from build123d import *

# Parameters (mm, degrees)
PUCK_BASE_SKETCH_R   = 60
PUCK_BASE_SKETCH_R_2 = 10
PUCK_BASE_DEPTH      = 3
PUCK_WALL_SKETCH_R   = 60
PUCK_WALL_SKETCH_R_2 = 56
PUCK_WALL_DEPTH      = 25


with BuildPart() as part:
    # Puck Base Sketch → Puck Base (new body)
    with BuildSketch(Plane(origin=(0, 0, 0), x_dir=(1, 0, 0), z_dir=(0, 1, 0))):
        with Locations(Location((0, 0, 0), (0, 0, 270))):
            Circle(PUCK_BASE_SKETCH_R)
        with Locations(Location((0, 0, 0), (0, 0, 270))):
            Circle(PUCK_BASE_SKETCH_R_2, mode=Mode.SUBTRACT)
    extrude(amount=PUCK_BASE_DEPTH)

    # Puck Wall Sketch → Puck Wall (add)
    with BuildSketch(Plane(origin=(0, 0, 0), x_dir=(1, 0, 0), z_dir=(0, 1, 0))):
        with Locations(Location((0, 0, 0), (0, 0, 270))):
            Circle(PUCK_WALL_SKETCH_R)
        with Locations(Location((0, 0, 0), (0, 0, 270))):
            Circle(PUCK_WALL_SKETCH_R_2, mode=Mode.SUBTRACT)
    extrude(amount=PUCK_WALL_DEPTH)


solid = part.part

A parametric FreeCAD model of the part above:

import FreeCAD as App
import Part
import Sketcher
Q = App.Units.Quantity

doc = App.newDocument("Part")
body = doc.addObject("PartDesign::Body", "Body")

# Sketch on XZ plane
sketch1 = doc.addObject("Sketcher::SketchObject", "Sketch")
body.addObject(sketch1)
sketch1.AttachmentSupport = (doc.XZ_Plane, [""])
sketch1.MapMode = "FlatFace"
sketch1.addGeometry(Part.Circle(App.Vector(0, 0, 0), App.Vector(0, 0, 1), 60), False)
sketch1.addGeometry(Part.Circle(App.Vector(0, 0, 0), App.Vector(0, 0, 1), 10), False)
sketch1.addConstraint(Sketcher.Constraint("Coincident", 0, 3, -1, 1))
sketch1.addConstraint(Sketcher.Constraint("Coincident", 1, 3, -1, 1))
sketch1.addConstraint(Sketcher.Constraint("Diameter", 0, Q("120 mm")))
sketch1.addConstraint(Sketcher.Constraint("Diameter", 1, Q("20 mm")))
pad1 = doc.addObject("PartDesign::Pad", "Pad")
body.addObject(pad1)
pad1.Profile = sketch1
pad1.Length = 3
pad1.Reversed = True

# Sketch on XZ plane
sketch2 = doc.addObject("Sketcher::SketchObject", "Sketch001")
body.addObject(sketch2)
sketch2.AttachmentSupport = (doc.XZ_Plane, [""])
sketch2.MapMode = "FlatFace"
sketch2.addGeometry(Part.Circle(App.Vector(0, 0, 0), App.Vector(0, 0, 1), 60), False)
sketch2.addGeometry(Part.Circle(App.Vector(0, 0, 0), App.Vector(0, 0, 1), 56), False)
sketch2.addConstraint(Sketcher.Constraint("Coincident", 0, 3, -1, 1))
sketch2.addConstraint(Sketcher.Constraint("Coincident", 1, 3, -1, 1))
sketch2.addConstraint(Sketcher.Constraint("Diameter", 0, Q("120 mm")))
sketch2.addConstraint(Sketcher.Constraint("Diameter", 1, Q("112 mm")))
pad2 = doc.addObject("PartDesign::Pad", "Pad001")
body.addObject(pad2)
pad2.Profile = sketch2
pad2.Length = 25
pad2.Reversed = True

doc.recompute()
